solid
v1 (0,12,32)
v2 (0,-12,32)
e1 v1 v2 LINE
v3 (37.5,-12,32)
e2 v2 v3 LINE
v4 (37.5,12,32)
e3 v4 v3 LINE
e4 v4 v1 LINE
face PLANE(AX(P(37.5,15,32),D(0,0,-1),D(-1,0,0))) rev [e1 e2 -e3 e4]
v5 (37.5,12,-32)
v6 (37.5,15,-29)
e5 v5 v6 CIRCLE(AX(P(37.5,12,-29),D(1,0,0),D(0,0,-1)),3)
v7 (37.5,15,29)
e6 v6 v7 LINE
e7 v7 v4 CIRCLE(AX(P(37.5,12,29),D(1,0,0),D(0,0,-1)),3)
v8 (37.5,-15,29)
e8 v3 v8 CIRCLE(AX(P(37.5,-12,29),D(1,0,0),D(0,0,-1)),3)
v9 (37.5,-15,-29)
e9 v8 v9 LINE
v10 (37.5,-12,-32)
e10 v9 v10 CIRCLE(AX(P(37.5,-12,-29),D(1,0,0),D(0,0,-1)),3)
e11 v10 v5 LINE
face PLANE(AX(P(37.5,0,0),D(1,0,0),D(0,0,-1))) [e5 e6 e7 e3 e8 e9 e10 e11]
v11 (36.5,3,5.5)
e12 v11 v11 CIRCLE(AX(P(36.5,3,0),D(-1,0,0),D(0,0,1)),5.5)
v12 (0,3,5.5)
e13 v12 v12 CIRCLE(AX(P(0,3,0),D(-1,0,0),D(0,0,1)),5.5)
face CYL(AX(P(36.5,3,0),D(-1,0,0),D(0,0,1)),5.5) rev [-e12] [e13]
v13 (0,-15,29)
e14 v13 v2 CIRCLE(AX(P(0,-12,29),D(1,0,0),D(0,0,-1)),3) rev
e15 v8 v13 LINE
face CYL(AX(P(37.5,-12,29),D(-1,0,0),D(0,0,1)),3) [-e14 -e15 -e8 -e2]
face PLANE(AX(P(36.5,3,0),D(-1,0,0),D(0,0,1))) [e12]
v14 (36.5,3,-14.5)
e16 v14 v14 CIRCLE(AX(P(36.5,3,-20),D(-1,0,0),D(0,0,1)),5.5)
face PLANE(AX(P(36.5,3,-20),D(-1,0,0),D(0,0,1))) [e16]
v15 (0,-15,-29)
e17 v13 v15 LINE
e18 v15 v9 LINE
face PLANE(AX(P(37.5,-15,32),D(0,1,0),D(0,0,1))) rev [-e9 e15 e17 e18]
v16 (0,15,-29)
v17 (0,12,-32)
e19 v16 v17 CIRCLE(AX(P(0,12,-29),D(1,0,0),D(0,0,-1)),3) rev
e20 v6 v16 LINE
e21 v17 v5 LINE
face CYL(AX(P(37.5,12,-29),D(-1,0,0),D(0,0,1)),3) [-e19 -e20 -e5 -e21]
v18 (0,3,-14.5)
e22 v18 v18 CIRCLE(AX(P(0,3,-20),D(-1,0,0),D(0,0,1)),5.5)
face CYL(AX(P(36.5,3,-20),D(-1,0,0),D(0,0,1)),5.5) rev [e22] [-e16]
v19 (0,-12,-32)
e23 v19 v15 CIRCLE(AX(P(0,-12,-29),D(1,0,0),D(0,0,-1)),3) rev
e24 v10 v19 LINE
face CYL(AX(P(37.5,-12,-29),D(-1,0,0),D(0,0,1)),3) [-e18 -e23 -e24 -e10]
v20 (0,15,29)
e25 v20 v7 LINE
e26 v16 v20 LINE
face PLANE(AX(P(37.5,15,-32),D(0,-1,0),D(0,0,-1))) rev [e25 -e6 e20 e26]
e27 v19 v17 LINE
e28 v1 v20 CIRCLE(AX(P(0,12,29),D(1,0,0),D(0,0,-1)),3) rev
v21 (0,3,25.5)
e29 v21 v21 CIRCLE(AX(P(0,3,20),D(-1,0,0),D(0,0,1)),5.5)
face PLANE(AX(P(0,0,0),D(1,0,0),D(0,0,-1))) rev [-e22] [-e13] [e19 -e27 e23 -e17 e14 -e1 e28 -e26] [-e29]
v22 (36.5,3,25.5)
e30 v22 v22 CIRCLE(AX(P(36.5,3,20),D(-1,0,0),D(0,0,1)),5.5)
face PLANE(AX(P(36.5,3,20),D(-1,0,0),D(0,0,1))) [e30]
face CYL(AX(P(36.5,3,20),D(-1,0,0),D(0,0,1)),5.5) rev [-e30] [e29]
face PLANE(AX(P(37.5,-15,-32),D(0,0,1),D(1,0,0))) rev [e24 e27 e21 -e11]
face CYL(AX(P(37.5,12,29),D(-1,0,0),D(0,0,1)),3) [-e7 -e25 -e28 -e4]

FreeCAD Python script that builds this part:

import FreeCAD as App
import Part
import Sketcher
from FreeCAD import Vector


def edges_at(feature, points):
    """Names of the edges that pass closest to the given points."""
    edges = feature.Shape.Edges
    near = lambda p: min(range(len(edges)), key=lambda i: edges[i].distToShape(Part.Vertex(*p))[0])
    return sorted({f"Edge{near(p) + 1}" for p in points})


def add_polygon(sketch, points):
    """Adds a closed chain of lines whose ends are joined by coincident constraints."""
    first, n = sketch.GeometryCount, len(points)
    for a, b in zip(points, points[1:] + points[:1]):
        sketch.addGeometry(Part.LineSegment(App.Vector(*a, 0), App.Vector(*b, 0)), False)
    for i in range(n):
        sketch.addConstraint(Sketcher.Constraint("Coincident", first + i, 2, first + (i + 1) % n, 1))

doc = App.newDocument("Part")
body = doc.addObject("PartDesign::Body", "Body")

# Sketch on YZ plane
sketch1 = doc.addObject("Sketcher::SketchObject", "Sketch")
body.addObject(sketch1)
sketch1.AttachmentSupport = (doc.YZ_Plane, [""])
sketch1.MapMode = "FlatFace"
add_polygon(sketch1, [(-15, 32), (-15, -32), (15, -32), (15, 32)])  # lines 0-3
sketch1.addConstraint(Sketcher.Constraint("Vertical", 0))
sketch1.addConstraint(Sketcher.Constraint("Horizontal", 1))
sketch1.addConstraint(Sketcher.Constraint("Vertical", 2))
sketch1.addConstraint(Sketcher.Constraint("Horizontal", 3))
sketch1.addConstraint(Sketcher.Constraint("Symmetric", 0, 2, 2, 2, -1, 1))
sketch1.addConstraint(Sketcher.Constraint("DistanceX", 1, 1, 1, 2, 30.0))
sketch1.addConstraint(Sketcher.Constraint("DistanceY", 0, 2, 0, 1, 64.0))
pad1 = doc.addObject("PartDesign::Pad", "Pad")
body.addObject(pad1)
pad1.Profile = sketch1
pad1.Length = 37.5
doc.recompute()

fillet = doc.addObject("PartDesign::Fillet", "Fillet")
body.addObject(fillet)
fillet.Base = (pad1, edges_at(pad1, [
    (18.75, -15, 32),
    (18.75, 15, 32),
    (18.75, 15, -32),
    (18.75, -15, -32),
]))
fillet.Radius = 3

# Sketch on YZ plane
sketch2 = doc.addObject("Sketcher::SketchObject", "Sketch001")
body.addObject(sketch2)
sketch2.AttachmentSupport = (doc.YZ_Plane, [""])
sketch2.MapMode = "FlatFace"
sketch2.addGeometry(Part.Circle(Vector(3, -20, 0), Vector(0, 0, 1), 6), False)
sketch2.addGeometry(Part.Circle(Vector(3, 0, 0), Vector(0, 0, 1), 6), False)
sketch2.addGeometry(Part.Circle(Vector(3, 20, 0), Vector(0, 0, 1), 6), False)
sketch2.addConstraint(Sketcher.Constraint("Equal", 0, 1))
sketch2.addConstraint(Sketcher.Constraint("Equal", 1, 2))
sketch2.addConstraint(Sketcher.Constraint("Symmetric", 0, 3, 2, 3, -1))
sketch2.addConstraint(Sketcher.Constraint("PointOnObject", 1, 3, -1))
sketch2.addConstraint(Sketcher.Constraint("Vertical", 0, 3, 1, 3))
sketch2.addConstraint(Sketcher.Constraint("Diameter", 0, 11.0))
sketch2.addConstraint(Sketcher.Constraint("DistanceX", -1, 1, 0, 3, 3.0))
sketch2.addConstraint(Sketcher.Constraint("DistanceY", 0, 3, -1, 1, 20.0))
pocket1 = doc.addObject("PartDesign::Pocket", "Pocket")
body.addObject(pocket1)
pocket1.Profile = sketch2
pocket1.Length = 36.5
pocket1.Reversed = True

doc.recompute()
